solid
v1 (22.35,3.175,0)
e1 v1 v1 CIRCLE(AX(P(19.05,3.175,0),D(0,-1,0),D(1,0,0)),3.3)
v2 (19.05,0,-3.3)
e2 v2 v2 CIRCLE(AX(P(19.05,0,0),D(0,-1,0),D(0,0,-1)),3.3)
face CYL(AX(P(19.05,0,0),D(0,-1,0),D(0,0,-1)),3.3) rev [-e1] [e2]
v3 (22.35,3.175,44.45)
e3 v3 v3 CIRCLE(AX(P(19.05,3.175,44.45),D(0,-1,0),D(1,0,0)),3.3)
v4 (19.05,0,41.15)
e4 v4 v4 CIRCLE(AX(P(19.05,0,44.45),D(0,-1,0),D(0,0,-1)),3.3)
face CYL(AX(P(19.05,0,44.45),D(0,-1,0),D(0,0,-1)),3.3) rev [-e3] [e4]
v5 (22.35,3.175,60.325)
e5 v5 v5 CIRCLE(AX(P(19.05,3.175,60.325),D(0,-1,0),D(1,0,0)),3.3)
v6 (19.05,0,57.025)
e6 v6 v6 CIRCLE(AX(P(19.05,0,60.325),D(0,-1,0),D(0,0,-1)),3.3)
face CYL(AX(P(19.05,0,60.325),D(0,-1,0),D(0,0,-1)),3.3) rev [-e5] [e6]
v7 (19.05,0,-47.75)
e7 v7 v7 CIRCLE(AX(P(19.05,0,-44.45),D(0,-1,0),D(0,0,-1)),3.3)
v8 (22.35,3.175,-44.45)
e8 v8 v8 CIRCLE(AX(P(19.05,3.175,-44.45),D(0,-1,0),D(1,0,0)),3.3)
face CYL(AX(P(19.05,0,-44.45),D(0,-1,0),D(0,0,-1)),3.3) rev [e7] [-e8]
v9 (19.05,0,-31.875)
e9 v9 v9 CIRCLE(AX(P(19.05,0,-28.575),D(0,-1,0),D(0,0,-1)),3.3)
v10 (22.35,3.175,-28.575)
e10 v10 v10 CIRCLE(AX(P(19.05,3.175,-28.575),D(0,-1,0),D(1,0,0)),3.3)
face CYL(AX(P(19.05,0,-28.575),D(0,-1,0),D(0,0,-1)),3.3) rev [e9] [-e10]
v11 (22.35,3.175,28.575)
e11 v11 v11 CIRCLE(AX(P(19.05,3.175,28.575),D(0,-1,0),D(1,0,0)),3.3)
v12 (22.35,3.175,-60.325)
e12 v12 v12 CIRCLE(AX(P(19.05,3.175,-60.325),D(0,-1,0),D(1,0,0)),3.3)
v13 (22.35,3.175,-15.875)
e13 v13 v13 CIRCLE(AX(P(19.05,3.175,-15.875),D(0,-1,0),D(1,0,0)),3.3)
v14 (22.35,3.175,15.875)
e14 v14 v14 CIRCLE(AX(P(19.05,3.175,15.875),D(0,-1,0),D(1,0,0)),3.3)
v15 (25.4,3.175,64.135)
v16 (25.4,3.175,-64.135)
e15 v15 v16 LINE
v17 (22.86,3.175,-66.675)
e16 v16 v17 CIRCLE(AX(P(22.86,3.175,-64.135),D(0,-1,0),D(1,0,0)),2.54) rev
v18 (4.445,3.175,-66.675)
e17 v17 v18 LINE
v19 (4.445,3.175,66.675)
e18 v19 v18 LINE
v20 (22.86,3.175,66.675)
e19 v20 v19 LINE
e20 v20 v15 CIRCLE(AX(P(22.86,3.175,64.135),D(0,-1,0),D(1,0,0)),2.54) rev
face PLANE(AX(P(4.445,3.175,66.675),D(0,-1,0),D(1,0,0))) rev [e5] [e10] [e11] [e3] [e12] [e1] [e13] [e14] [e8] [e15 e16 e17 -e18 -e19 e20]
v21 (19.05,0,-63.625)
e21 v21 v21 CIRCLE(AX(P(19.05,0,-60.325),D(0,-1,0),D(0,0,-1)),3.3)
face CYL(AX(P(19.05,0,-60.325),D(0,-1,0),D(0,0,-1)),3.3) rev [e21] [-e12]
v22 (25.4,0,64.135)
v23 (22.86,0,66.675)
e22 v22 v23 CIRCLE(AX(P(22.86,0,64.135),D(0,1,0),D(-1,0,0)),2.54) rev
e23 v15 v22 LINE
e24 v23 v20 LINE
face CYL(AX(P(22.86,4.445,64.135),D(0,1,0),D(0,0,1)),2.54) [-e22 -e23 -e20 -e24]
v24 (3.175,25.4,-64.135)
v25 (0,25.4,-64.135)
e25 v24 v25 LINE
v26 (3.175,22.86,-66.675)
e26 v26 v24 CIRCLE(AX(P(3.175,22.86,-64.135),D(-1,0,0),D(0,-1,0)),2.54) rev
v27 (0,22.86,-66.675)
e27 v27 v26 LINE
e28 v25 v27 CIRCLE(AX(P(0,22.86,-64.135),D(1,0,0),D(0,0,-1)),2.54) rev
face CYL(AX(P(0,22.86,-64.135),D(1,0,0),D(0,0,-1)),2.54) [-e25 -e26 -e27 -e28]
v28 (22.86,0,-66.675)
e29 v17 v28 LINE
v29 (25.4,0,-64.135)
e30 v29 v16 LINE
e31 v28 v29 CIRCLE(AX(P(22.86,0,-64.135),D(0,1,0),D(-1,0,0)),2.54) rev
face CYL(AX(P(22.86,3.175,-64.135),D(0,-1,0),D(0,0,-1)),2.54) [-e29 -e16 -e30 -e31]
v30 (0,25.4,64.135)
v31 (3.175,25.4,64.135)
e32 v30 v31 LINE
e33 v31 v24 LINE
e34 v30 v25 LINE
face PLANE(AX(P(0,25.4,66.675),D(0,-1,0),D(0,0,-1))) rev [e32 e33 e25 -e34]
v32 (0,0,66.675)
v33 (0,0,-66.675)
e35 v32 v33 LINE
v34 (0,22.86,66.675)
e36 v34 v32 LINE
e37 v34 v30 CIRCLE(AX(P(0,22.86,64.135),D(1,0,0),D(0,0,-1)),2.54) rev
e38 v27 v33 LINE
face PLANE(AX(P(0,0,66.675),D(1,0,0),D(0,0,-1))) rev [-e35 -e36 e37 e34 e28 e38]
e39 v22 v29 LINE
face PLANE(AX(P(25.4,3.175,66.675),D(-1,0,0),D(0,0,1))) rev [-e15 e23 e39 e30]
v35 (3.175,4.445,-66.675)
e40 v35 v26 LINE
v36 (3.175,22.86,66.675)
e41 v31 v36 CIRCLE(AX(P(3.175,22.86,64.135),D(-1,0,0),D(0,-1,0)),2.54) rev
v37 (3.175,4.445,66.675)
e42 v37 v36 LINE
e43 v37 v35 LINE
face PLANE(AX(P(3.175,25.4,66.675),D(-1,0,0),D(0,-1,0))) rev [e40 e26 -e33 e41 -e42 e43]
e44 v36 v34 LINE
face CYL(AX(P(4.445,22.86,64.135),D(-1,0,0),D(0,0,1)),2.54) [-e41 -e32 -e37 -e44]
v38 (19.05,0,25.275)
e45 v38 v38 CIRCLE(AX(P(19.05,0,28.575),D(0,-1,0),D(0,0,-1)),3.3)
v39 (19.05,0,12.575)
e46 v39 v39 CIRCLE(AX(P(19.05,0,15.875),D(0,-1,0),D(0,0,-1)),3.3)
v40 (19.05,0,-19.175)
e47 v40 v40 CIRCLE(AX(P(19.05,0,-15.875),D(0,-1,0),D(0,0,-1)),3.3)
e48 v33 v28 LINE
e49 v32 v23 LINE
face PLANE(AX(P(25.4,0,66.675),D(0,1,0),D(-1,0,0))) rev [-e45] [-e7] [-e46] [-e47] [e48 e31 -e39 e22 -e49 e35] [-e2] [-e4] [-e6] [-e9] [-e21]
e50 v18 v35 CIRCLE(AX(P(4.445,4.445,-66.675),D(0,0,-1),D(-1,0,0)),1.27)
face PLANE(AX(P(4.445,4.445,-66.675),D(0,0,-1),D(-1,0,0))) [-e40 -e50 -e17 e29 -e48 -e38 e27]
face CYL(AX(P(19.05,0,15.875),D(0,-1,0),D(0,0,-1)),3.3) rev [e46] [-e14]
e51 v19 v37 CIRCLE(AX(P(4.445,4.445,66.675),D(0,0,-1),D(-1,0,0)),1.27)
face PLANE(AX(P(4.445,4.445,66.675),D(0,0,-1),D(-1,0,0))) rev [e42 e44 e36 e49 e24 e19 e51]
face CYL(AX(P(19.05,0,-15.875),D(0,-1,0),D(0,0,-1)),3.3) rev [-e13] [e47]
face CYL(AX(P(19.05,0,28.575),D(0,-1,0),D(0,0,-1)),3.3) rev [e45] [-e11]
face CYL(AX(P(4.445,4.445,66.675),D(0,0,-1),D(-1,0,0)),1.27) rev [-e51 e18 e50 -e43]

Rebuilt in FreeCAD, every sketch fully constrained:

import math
import FreeCAD as App
import Part
import Sketcher

V = App.Vector
Q = App.Units.Quantity


def edges_at(feature, points):
    """Names of the edges that pass closest to the given points."""
    edges = feature.Shape.Edges
    near = lambda p: min(range(len(edges)), key=lambda i: edges[i].distToShape(Part.Vertex(*p))[0])
    return sorted({f"Edge{near(p) + 1}" for p in points})

doc = App.newDocument("Part")
params = doc.addObject("Spreadsheet::Sheet", "Params")
for row, (alias, value) in enumerate([
    ("sketch1_width", "1 in"),
    ("sketch1_radius", "0.05 in"),
    ("sketch1_width2", "0.825 in"),
    ("pad1_length", "5.25 in"),
    ("hole_diameter", "6.6 mm"),
    ("linearpattern_pitch", "1.75 in"),
    ("fillet_radius", "0.1 in"),
], start=1):
    params.set(f"A{row}", alias)
    params.set(f"B{row}", "=" + value)
    params.setAlias(f"B{row}", alias)

body = doc.addObject("PartDesign::Body", "Body")

# Sketch on XY plane
sketch1 = doc.addObject("Sketcher::SketchObject", "Sketch")
body.addObject(sketch1)
sketch1.AttachmentSupport = (doc.XY_Plane, [""])
sketch1.MapMode = "FlatFace"
sketch1.addGeometry([
    Part.LineSegment(V(0, 25.4, 0), V(0, 0, 0)),  # 0
    Part.LineSegment(V(0, 0, 0), V(25.4, 0, 0)),  # 1
    Part.LineSegment(V(25.4, 0, 0), V(25.4, 3.2, 0)),  # 2
    Part.LineSegment(V(25.4, 3.2, 0), V(4.4, 3.2, 0)),  # 3
    Part.ArcOfCircle(Part.Circle(V(4.4, 4.4, 0), V(0, 0, 1), 1.3), math.radians(180), math.radians(270)),  # 4
    Part.LineSegment(V(3.2, 4.4, 0), V(3.2, 25.4, 0)),  # 5
    Part.LineSegment(V(3.2, 25.4, 0), V(0, 25.4, 0)),  # 6
], False)
sketch1.addConstraint([
    Sketcher.Constraint("Coincident", 0, 2, 1, 1),
    Sketcher.Constraint("Coincident", 1, 2, 2, 1),
    Sketcher.Constraint("Coincident", 2, 2, 3, 1),
    Sketcher.Constraint("Tangent", 3, 2, 4, 2),
    Sketcher.Constraint("Tangent", 4, 1, 5, 1),
    Sketcher.Constraint("Coincident", 5, 2, 6, 1),
    Sketcher.Constraint("Coincident", 6, 2, 0, 1),
    Sketcher.Constraint("Vertical", 0),
    Sketcher.Constraint("Horizontal", 1),
    Sketcher.Constraint("Vertical", 2),
    Sketcher.Constraint("Horizontal", 3),
    Sketcher.Constraint("Vertical", 5),
    Sketcher.Constraint("Horizontal", 6),
    Sketcher.Constraint("Coincident", 0, 2, -1, 1),
    Sketcher.Constraint("Equal", 1, 0),
    Sketcher.Constraint("Equal", 6, 2),
    Sketcher.Constraint("DistanceX", 1, 1, 1, 2, Q("1 in")),
    Sketcher.Constraint("Radius", 4, Q("0.05 in")),
    Sketcher.Constraint("DistanceX", 3, 2, 3, 1, Q("0.825 in")),
])
sketch1.setExpression("Constraints[16]", "Params.sketch1_width")
sketch1.setExpression("Constraints[17]", "Params.sketch1_radius")
sketch1.setExpression("Constraints[18]", "Params.sketch1_width2")
pad1 = doc.addObject("PartDesign::Pad", "Pad")
body.addObject(pad1)
pad1.Profile = sketch1
pad1.setExpression("Length", "Params.pad1_length")
pad1.Midplane = True

# Sketch on XZ plane
sketch2 = doc.addObject("Sketcher::SketchObject", "Sketch001")
body.addObject(sketch2)
sketch2.AttachmentSupport = (doc.XZ_Plane, [""])
sketch2.MapMode = "FlatFace"
sketch2.addGeometry([
    Part.Circle(V(19.1, 60.3, 0), V(0, 0, 1), 3.3),
    Part.Circle(V(19.1, 44.5, 0), V(0, 0, 1), 3.3),
    Part.Circle(V(19.1, 28.6, 0), V(0, 0, 1), 3.3),
], False)
sketch2.addConstraint([
    Sketcher.Constraint("Equal", 0, 1),
    Sketcher.Constraint("Equal", 1, 2),
    Sketcher.Constraint("Vertical", 0, 3, 1, 3),
    Sketcher.Constraint("Vertical", 1, 3, 2, 3),
    Sketcher.Constraint("Diameter", 0, Q("6.6 mm")),
    Sketcher.Constraint("DistanceX", -1, 1, 0, 3, Q("0.75 in")),
    Sketcher.Constraint("DistanceY", -1, 1, 1, 3, Q("1.75 in")),
    Sketcher.Constraint("DistanceY", 2, 3, 0, 3, Q("1.25 in")),
    Sketcher.Constraint("DistanceY", -1, 1, 0, 3, Q("2.375 in")),
])
doc.recompute()
hole = doc.addObject("PartDesign::Hole", "Hole")
body.addObject(hole)
hole.Profile = sketch2
hole.ThreadType = "None"
hole.setExpression("Diameter", "Params.hole_diameter")
hole.DepthType = "ThroughAll"
doc.recompute()

linearpattern = doc.addObject("PartDesign::LinearPattern", "LinearPattern")
body.addObject(linearpattern)
linearpattern.Originals = [hole]
linearpattern.Direction = (doc.Z_Axis, [""])
linearpattern.Mode = "offset"
linearpattern.setExpression("Offset", "Params.linearpattern_pitch")
linearpattern.Occurrences = 3
linearpattern.Reversed = True
body.Tip = linearpattern
doc.recompute()

fillet = doc.addObject("PartDesign::Fillet", "Fillet")
body.addObject(fillet)
fillet.Base = (linearpattern, edges_at(linearpattern, [
    (1.587, 25.4, 66.675),
    (1.587, 25.4, -66.675),
    (25.4, 1.587, 66.675),
    (25.4, 1.587, -66.675),
]))
fillet.setExpression("Radius", "Params.fillet_radius")

doc.recompute()
